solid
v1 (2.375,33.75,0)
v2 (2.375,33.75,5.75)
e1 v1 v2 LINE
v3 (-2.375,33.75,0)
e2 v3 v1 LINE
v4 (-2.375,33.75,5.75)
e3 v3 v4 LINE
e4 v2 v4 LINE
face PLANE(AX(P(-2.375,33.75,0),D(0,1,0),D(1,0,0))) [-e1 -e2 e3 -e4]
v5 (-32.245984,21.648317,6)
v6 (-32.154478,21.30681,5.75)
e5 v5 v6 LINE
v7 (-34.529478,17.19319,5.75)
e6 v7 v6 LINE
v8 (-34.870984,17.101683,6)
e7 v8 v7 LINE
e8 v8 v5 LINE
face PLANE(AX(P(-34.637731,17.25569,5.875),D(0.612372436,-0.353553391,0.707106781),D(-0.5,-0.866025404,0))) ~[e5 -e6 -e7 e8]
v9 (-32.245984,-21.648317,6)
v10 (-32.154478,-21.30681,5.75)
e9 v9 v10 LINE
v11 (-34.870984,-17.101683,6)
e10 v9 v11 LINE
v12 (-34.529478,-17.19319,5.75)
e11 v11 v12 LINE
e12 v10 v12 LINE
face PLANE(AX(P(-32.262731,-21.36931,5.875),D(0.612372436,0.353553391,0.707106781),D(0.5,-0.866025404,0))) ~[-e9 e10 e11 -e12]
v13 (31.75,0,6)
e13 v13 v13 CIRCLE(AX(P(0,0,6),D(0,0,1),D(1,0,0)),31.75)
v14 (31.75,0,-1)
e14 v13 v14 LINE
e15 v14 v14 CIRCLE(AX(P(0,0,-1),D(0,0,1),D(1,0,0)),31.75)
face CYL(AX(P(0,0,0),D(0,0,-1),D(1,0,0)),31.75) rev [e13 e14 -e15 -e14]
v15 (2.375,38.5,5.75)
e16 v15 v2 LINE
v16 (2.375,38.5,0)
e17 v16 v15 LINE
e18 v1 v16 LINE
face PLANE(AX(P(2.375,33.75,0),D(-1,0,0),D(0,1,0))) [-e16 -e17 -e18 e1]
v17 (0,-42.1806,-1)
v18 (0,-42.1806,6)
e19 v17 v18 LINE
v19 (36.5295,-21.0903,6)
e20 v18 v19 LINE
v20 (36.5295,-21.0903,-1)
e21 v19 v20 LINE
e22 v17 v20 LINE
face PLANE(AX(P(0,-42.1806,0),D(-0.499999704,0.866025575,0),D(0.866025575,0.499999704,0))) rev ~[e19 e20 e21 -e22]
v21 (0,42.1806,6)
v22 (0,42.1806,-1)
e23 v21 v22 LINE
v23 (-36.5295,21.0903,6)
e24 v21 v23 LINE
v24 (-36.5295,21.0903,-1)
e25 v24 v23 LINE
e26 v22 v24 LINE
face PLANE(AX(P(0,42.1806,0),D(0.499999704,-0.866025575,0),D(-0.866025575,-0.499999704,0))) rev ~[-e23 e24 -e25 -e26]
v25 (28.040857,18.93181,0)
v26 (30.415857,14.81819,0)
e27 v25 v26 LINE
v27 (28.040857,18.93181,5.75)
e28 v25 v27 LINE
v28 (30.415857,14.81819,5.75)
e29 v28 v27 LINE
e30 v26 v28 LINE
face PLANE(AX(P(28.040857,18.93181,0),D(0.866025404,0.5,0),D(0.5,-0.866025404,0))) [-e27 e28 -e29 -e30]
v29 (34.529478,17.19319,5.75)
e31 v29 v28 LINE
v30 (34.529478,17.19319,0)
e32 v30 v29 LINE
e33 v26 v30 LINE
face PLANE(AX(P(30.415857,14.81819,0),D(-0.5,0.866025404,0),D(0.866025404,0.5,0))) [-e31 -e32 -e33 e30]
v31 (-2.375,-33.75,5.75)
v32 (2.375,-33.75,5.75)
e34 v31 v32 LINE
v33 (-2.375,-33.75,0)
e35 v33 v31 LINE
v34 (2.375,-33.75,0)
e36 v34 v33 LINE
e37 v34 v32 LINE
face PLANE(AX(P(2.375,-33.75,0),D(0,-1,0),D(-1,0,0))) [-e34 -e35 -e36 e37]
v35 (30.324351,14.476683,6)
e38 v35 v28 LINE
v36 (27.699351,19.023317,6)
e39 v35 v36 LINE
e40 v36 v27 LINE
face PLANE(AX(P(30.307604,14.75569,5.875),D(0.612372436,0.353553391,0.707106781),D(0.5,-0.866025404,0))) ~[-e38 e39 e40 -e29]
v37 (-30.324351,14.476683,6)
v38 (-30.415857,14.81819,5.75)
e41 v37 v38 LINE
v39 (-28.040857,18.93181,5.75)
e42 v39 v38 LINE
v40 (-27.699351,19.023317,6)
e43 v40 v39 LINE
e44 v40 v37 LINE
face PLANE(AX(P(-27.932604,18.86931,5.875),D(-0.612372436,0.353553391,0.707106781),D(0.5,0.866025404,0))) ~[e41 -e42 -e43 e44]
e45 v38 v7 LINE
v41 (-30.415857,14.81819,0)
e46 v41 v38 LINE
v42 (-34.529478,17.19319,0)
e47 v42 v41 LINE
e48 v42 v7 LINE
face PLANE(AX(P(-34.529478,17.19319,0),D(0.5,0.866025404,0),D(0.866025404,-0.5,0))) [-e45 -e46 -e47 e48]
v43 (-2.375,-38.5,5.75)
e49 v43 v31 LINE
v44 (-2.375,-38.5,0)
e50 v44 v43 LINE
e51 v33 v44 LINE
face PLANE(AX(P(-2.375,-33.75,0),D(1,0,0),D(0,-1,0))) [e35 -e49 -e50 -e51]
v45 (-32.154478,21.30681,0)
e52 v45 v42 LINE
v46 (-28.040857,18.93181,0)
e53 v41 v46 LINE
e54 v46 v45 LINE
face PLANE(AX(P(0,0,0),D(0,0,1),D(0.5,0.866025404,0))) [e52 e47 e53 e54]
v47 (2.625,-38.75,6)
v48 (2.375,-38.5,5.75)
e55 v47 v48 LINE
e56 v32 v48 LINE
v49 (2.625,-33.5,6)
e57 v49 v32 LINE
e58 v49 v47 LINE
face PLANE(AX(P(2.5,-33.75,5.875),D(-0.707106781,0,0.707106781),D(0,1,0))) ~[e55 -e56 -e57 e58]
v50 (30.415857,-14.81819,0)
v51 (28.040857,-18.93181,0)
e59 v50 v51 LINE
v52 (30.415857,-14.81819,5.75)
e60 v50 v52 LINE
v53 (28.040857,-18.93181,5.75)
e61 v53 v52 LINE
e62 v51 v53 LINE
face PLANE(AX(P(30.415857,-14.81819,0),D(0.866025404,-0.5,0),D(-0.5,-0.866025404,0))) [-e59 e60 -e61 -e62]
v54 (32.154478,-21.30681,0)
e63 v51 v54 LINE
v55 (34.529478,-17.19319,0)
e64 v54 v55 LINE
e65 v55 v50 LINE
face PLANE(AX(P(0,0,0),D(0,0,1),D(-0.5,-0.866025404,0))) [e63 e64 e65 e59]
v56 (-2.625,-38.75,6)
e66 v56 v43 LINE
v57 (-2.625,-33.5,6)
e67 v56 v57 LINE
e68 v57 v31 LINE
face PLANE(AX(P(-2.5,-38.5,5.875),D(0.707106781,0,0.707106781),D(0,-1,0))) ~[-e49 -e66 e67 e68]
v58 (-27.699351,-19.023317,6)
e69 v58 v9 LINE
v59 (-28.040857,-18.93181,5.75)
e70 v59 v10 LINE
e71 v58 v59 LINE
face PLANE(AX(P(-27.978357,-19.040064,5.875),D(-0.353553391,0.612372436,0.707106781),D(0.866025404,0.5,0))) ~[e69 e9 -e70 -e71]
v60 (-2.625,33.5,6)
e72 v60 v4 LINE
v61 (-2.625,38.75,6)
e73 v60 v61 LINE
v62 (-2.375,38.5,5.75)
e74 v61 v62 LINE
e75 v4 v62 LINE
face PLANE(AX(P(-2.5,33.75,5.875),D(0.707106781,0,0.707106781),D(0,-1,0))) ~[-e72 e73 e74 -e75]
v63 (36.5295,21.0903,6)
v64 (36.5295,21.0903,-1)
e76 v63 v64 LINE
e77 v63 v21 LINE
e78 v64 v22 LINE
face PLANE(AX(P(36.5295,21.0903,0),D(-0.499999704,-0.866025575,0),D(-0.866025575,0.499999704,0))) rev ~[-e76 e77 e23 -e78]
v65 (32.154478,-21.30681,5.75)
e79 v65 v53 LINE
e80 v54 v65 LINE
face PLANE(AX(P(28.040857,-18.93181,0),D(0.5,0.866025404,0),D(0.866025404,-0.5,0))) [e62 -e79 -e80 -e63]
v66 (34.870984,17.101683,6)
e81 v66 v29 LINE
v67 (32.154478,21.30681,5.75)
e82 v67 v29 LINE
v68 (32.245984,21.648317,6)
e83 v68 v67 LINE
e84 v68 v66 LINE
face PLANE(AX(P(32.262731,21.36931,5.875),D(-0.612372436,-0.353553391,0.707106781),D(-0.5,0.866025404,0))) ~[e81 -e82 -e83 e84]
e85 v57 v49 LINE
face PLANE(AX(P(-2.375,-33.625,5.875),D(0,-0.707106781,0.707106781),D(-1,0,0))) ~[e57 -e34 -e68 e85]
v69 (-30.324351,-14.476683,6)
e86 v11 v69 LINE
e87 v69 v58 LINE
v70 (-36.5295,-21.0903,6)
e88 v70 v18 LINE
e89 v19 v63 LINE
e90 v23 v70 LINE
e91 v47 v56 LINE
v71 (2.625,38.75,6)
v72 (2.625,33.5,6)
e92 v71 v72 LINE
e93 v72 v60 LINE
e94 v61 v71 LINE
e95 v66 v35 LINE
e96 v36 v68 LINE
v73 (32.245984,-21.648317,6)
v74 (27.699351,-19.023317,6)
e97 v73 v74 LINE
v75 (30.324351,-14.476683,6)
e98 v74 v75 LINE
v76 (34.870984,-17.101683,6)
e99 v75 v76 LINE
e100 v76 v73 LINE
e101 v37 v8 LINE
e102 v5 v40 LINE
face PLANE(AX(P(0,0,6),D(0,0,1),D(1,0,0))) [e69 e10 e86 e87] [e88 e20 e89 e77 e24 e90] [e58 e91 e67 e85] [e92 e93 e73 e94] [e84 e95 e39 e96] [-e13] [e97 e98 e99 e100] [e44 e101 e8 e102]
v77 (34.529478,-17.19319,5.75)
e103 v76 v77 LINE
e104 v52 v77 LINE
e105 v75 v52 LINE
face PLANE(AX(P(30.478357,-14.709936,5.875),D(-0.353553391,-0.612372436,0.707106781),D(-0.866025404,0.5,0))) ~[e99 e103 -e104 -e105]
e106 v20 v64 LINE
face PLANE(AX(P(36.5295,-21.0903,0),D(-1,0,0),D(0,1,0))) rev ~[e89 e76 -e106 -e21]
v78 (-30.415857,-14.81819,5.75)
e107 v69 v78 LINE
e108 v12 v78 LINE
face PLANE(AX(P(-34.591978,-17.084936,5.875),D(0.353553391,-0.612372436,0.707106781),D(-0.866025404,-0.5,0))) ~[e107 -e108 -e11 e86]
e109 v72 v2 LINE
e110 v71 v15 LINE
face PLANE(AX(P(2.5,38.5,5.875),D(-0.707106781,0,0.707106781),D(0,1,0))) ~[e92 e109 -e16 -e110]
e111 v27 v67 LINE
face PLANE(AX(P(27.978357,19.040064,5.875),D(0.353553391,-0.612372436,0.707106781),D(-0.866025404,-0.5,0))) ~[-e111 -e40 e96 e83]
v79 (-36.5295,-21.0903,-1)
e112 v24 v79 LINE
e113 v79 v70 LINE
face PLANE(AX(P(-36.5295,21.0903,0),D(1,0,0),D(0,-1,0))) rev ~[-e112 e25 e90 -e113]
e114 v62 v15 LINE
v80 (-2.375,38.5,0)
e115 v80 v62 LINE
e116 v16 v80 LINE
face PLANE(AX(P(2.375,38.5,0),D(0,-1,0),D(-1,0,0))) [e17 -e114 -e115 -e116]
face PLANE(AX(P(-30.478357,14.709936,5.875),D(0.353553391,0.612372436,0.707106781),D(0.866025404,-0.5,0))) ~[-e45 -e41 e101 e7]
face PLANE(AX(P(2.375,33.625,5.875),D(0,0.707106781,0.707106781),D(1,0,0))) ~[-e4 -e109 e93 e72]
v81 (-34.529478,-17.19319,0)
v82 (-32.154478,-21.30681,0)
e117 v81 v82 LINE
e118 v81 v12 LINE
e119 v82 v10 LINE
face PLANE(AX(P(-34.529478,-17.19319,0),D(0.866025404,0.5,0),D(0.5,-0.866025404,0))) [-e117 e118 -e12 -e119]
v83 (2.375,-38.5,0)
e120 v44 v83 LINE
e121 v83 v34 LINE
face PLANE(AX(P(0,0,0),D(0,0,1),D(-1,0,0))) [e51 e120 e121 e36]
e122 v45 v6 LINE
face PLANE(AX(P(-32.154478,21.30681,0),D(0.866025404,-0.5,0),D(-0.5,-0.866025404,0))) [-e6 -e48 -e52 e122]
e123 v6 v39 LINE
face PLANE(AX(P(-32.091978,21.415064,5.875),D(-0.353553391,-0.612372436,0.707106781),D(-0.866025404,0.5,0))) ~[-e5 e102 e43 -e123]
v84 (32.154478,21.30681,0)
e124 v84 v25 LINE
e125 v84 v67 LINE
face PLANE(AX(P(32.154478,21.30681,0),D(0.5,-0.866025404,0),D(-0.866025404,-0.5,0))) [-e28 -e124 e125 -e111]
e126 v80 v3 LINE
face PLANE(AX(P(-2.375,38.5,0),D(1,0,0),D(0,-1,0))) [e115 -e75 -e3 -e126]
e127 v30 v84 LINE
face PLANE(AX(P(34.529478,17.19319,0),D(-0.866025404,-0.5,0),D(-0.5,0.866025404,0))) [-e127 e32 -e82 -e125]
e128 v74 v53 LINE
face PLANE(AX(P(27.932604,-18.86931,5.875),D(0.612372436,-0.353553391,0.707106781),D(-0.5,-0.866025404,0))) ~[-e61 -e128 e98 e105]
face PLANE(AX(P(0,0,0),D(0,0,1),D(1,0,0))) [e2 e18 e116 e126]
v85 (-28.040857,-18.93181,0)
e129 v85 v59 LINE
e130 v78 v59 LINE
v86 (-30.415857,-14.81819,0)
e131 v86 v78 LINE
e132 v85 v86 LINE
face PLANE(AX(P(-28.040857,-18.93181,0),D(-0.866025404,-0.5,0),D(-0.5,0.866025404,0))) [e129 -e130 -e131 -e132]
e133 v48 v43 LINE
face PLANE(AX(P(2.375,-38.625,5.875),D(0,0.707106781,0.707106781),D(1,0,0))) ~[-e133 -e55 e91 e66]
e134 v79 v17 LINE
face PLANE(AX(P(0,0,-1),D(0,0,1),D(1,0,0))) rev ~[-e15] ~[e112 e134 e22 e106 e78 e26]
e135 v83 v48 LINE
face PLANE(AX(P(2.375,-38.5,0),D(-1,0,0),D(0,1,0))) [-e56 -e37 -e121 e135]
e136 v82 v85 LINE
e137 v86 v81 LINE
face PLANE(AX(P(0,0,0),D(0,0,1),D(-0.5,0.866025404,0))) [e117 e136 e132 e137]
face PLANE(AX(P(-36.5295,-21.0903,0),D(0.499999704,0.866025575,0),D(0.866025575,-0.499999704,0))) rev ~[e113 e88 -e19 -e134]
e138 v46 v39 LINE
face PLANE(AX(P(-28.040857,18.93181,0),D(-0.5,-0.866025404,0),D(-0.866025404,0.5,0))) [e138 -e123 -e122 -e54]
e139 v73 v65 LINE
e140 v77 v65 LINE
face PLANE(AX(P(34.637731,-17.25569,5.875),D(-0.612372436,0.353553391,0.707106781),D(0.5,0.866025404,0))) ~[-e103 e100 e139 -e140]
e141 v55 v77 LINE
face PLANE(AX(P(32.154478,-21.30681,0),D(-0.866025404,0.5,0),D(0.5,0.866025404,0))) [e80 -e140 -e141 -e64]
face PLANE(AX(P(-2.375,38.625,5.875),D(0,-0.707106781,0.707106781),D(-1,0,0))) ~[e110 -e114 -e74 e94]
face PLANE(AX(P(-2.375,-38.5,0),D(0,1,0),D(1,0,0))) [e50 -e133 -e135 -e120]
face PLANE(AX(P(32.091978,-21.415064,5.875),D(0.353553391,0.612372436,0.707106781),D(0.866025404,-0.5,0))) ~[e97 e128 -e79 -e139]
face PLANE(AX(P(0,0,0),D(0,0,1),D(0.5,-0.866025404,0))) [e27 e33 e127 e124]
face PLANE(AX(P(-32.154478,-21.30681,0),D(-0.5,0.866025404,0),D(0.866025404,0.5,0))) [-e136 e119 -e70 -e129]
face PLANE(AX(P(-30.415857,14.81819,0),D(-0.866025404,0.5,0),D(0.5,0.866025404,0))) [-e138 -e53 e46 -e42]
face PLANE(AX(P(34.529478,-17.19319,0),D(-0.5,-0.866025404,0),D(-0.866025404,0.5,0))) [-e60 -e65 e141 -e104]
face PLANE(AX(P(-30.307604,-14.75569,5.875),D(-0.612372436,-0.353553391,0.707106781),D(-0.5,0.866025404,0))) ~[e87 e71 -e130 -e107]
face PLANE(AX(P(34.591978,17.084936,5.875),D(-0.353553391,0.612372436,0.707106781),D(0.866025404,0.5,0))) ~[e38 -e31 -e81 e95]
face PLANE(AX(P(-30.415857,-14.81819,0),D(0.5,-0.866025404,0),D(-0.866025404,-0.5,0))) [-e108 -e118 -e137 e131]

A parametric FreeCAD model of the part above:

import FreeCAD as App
import Part
import Sketcher
Q = App.Units.Quantity


def edges_at(feature, points):
    """Names of the edges that pass closest to the given points."""
    edges = feature.Shape.Edges
    near = lambda p: min(range(len(edges)), key=lambda i: edges[i].distToShape(Part.Vertex(*p))[0])
    return sorted({f"Edge{near(p) + 1}" for p in points})

doc = App.newDocument("Part")
body = doc.addObject("PartDesign::Body", "Body")

# Sketch on XY plane
sketch1 = body.newObject("Sketcher::SketchObject", "Sketch")
sketch1.AttachmentSupport = (doc.getObject("XY_Plane"), [""])
sketch1.MapMode = "FlatFace"
sketch1.addGeometry([
    Part.LineSegment(App.Vector(0, 42, 0), App.Vector(-37, 21, 0)),  # 0
    Part.LineSegment(App.Vector(-37, 21, 0), App.Vector(-37, -21, 0)),  # 1
    Part.LineSegment(App.Vector(-37, -21, 0), App.Vector(0, -42, 0)),  # 2
    Part.LineSegment(App.Vector(0, -42, 0), App.Vector(37, -21, 0)),  # 3
    Part.LineSegment(App.Vector(37, -21, 0), App.Vector(37, 21, 0)),  # 4
    Part.LineSegment(App.Vector(37, 21, 0), App.Vector(0, 42, 0)),  # 5
    Part.Circle(App.Vector(0, 0, 0), App.Vector(0, 0, 1), 32),  # 6
], False)
sketch1.addConstraint([
    Sketcher.Constraint("Coincident", 0, 2, 1, 1),
    Sketcher.Constraint("Coincident", 1, 2, 2, 1),
    Sketcher.Constraint("Coincident", 2, 2, 3, 1),
    Sketcher.Constraint("Coincident", 3, 2, 4, 1),
    Sketcher.Constraint("Coincident", 4, 2, 5, 1),
    Sketcher.Constraint("Coincident", 5, 2, 0, 1),
    Sketcher.Constraint("Vertical", 1),
    Sketcher.Constraint("Vertical", 4),
    Sketcher.Constraint("Coincident", 6, 3, -1, 1),
    Sketcher.Constraint("Symmetric", 0, 2, 3, 2, -1, 1),
    Sketcher.Constraint("Symmetric", 2, 2, 5, 2, -1, 1),
    Sketcher.Constraint("PointOnObject", 2, 2, -2),
    Sketcher.Constraint("Parallel", 2, 5),
    Sketcher.Constraint("Horizontal", 1, 2, 3, 2),
    Sketcher.Constraint("Diameter", 6, Q("2.5 in")),
    Sketcher.Constraint("Angle", 0, Q("-150 deg")),
    Sketcher.Constraint("DistanceY", 1, 2, 1, 1, 42.1806),
    Sketcher.Constraint("Distance", 0, 42.1806),
])
pad1 = body.newObject("PartDesign::Pad", "Pad")
pad1.Profile = sketch1
pad1.Length = 6

# Sketch on XY plane
sketch2 = body.newObject("Sketcher::SketchObject", "Sketch001")
sketch2.AttachmentSupport = (doc.getObject("XY_Plane"), [""])
sketch2.MapMode = "FlatFace"
sketch2.addGeometry([
    Part.LineSegment(App.Vector(0, 42, 0), App.Vector(-37, 21, 0)),  # 0
    Part.LineSegment(App.Vector(-37, 21, 0), App.Vector(-37, -21, 0)),  # 1
    Part.LineSegment(App.Vector(-37, -21, 0), App.Vector(0, -42, 0)),  # 2
    Part.LineSegment(App.Vector(0, -42, 0), App.Vector(37, -21, 0)),  # 3
    Part.LineSegment(App.Vector(37, -21, 0), App.Vector(37, 21, 0)),  # 4
    Part.LineSegment(App.Vector(37, 21, 0), App.Vector(0, 42, 0)),  # 5
    Part.Circle(App.Vector(0, 0, 0), App.Vector(0, 0, 1), 32),  # 6
], False)
sketch2.addConstraint([
    Sketcher.Constraint("Coincident", 0, 2, 1, 1),
    Sketcher.Constraint("Coincident", 1, 2, 2, 1),
    Sketcher.Constraint("Coincident", 2, 2, 3, 1),
    Sketcher.Constraint("Coincident", 3, 2, 4, 1),
    Sketcher.Constraint("Coincident", 4, 2, 5, 1),
    Sketcher.Constraint("Coincident", 5, 2, 0, 1),
    Sketcher.Constraint("Vertical", 1),
    Sketcher.Constraint("Vertical", 4),
    Sketcher.Constraint("Coincident", 6, 3, -1, 1),
    Sketcher.Constraint("Symmetric", 0, 2, 3, 2, -1, 1),
    Sketcher.Constraint("Symmetric", 2, 2, 5, 2, -1, 1),
    Sketcher.Constraint("PointOnObject", 2, 2, -2),
    Sketcher.Constraint("Parallel", 2, 5),
    Sketcher.Constraint("Horizontal", 1, 2, 3, 2),
    Sketcher.Constraint("Diameter", 6, Q("2.5 in")),
    Sketcher.Constraint("Angle", 0, Q("-150 deg")),
    Sketcher.Constraint("DistanceY", 1, 2, 1, 1, 42.1806),
    Sketcher.Constraint("Distance", 0, 42.1806),
])
pad2 = body.newObject("PartDesign::Pad", "Pad001")
pad2.Profile = sketch2
pad2.Length = 1
pad2.Reversed = True

# Sketch on XY plane
sketch3 = body.newObject("Sketcher::SketchObject", "Sketch002")
sketch3.AttachmentSupport = (doc.getObject("XY_Plane"), [""])
sketch3.MapMode = "FlatFace"
sketch3.addGeometry([
    Part.LineSegment(App.Vector(-2.4, 38.5, 0), App.Vector(-2.4, 33.8, 0)),
    Part.LineSegment(App.Vector(-2.4, 33.8, 0), App.Vector(2.4, 33.8, 0)),
    Part.LineSegment(App.Vector(2.4, 33.8, 0), App.Vector(2.4, 38.5, 0)),
    Part.LineSegment(App.Vector(2.4, 38.5, 0), App.Vector(-2.4, 38.5, 0)),
], False)
sketch3.addConstraint([
    Sketcher.Constraint("Coincident", 0, 2, 1, 1),
    Sketcher.Constraint("Coincident", 1, 2, 2, 1),
    Sketcher.Constraint("Coincident", 2, 2, 3, 1),
    Sketcher.Constraint("Coincident", 3, 2, 0, 1),
    Sketcher.Constraint("Vertical", 0),
    Sketcher.Constraint("Horizontal", 1),
    Sketcher.Constraint("Vertical", 2),
    Sketcher.Constraint("Horizontal", 3),
    Sketcher.Constraint("Equal", 3, 0),
    Sketcher.Constraint("DistanceX", 1, 1, 1, 2, Q("0.187 in")),
    Sketcher.Constraint("DistanceX", 0, 2, -1, 1, Q("0.0935 in")),
    Sketcher.Constraint("DistanceY", -1, 1, 0, 2, 33.75),
])
pocket1 = body.newObject("PartDesign::Pocket", "Pocket")
pocket1.Profile = sketch3
pocket1.Length = Q("1.3 in")
pocket1.Reversed = True
doc.recompute()

chamfer = body.newObject("PartDesign::Chamfer", "Chamfer")
chamfer.Base = (pocket1, edges_at(pocket1, [
    (-2.375, 36.125, 6),
    (0, 33.75, 6),
    (2.375, 36.125, 6),
    (0, 38.5, 6),
]))
chamfer.Size = 0.25
doc.recompute()

polarpattern = body.newObject("PartDesign::PolarPattern", "PolarPattern")
polarpattern.Originals = [pocket1, chamfer]
polarpattern.Axis = (doc.getObject("Z_Axis"), [""])
polarpattern.Angle = 360
polarpattern.Occurrences = 6
body.Tip = polarpattern

doc.recompute()
